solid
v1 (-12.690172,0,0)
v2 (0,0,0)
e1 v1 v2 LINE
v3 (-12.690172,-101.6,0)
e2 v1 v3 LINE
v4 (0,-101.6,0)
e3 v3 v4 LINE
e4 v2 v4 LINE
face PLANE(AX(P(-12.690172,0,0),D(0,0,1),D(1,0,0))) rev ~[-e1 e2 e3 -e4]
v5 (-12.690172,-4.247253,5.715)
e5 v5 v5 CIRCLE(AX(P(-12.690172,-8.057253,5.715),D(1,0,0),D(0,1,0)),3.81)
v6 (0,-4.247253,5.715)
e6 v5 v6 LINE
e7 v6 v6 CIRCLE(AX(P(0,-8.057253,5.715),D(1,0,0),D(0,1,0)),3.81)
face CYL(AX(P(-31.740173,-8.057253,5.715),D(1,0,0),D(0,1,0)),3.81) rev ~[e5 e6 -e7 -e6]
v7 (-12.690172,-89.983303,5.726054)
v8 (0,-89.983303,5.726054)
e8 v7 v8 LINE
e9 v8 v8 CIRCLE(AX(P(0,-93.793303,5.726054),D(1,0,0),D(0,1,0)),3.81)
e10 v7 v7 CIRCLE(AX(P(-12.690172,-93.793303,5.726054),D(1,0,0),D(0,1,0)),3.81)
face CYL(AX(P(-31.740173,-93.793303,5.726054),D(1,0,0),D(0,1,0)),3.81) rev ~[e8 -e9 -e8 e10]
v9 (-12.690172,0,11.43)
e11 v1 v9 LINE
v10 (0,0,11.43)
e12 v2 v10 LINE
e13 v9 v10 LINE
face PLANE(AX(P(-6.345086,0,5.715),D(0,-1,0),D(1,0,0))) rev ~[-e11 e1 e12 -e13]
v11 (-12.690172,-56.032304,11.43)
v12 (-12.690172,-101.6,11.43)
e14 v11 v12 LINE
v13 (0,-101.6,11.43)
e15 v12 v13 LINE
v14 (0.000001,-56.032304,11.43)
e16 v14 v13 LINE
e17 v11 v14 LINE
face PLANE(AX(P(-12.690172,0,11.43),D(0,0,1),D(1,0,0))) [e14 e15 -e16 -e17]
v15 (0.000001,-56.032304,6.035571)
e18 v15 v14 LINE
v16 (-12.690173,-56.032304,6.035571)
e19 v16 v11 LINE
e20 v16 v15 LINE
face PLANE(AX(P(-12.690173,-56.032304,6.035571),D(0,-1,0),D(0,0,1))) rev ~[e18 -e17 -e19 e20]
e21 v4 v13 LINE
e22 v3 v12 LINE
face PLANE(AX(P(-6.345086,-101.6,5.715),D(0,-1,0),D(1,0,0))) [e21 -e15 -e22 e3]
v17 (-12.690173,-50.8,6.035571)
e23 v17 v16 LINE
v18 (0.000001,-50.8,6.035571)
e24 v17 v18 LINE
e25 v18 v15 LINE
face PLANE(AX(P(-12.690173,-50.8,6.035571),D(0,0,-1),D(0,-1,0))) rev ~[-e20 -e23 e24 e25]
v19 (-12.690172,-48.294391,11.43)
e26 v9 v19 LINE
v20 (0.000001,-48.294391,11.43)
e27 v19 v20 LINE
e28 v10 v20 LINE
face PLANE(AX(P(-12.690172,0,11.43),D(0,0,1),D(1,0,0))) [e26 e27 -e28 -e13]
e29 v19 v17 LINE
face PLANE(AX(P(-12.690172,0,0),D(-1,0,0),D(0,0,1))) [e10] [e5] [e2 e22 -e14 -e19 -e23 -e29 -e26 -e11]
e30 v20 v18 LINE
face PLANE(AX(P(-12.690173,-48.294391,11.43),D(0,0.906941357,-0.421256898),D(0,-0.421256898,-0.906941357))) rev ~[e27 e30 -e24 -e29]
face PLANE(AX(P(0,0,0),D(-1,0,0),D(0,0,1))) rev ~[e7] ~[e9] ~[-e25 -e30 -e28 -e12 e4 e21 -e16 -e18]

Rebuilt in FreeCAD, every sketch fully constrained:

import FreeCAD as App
import Part
import Sketcher
from FreeCAD import Vector
Q = App.Units.Quantity


def add_polygon(sketch, points):
    """Adds a closed chain of lines whose ends are joined by coincident constraints."""
    first, n = sketch.GeometryCount, len(points)
    for a, b in zip(points, points[1:] + points[:1]):
        sketch.addGeometry(Part.LineSegment(App.Vector(*a, 0), App.Vector(*b, 0)), False)
    for i in range(n):
        sketch.addConstraint(Sketcher.Constraint("Coincident", first + i, 2, first + (i + 1) % n, 1))

doc = App.newDocument("Part")
body = doc.addObject("PartDesign::Body", "Body")

# Sketch on XZ plane
sketch1 = doc.addObject("Sketcher::SketchObject", "Sketch")
body.addObject(sketch1)
sketch1.AttachmentSupport = (doc.XZ_Plane, [""])
sketch1.MapMode = "FlatFace"
add_polygon(sketch1, [(-13, 11), (-13, 0), (0, 0), (0, 11)])  # lines 0-3
sketch1.addConstraint(Sketcher.Constraint("Vertical", 0))
sketch1.addConstraint(Sketcher.Constraint("Horizontal", 1))
sketch1.addConstraint(Sketcher.Constraint("Vertical", 2))
sketch1.addConstraint(Sketcher.Constraint("Horizontal", 3))
sketch1.addConstraint(Sketcher.Constraint("Coincident", 1, 2, -1, 1))
sketch1.addConstraint(Sketcher.Constraint("DistanceY", 0, 2, 0, 1, Q("0.45 in")))
sketch1.addConstraint(Sketcher.Constraint("DistanceX", 1, 1, 1, 2, 12.690173))
pad1 = doc.addObject("PartDesign::Pad", "Pad")
body.addObject(pad1)
pad1.Profile = sketch1
pad1.Length = Q("4 in")

# Sketch on YZ plane
sketch2 = doc.addObject("Sketcher::SketchObject", "Sketch001")
body.addObject(sketch2)
sketch2.AttachmentSupport = (doc.YZ_Plane, [""])
sketch2.MapMode = "FlatFace"
sketch2.AttachmentOffset = App.Placement(Vector(0, 0, -12.690173), App.Rotation())
add_polygon(sketch2, [(-48, 11), (-51, 6), (-56, 6), (-56, 11)])  # lines 0-3
sketch2.addConstraint(Sketcher.Constraint("Horizontal", 1))
sketch2.addConstraint(Sketcher.Constraint("Vertical", 2))
sketch2.addConstraint(Sketcher.Constraint("Horizontal", 3))
sketch2.addConstraint(Sketcher.Constraint("DistanceX", 0, 2, -1, 1, Q("2 in")))
sketch2.addConstraint(Sketcher.Constraint("DistanceY", -1, 1, 2, 2, Q("0.45 in")))
sketch2.addConstraint(Sketcher.Constraint("DistanceY", 2, 1, 2, 2, 5.394429))
sketch2.addConstraint(Sketcher.Constraint("DistanceX", 1, 2, 1, 1, 5.232304))
sketch2.addConstraint(Sketcher.Constraint("DistanceX", 3, 1, 3, 2, 7.737913))
pocket1 = doc.addObject("PartDesign::Pocket", "Pocket")
body.addObject(pocket1)
pocket1.Profile = sketch2
pocket1.Length = Q("1 in")
pocket1.Reversed = True

# Sketch on YZ plane
sketch3 = doc.addObject("Sketcher::SketchObject", "Sketch002")
body.addObject(sketch3)
sketch3.AttachmentSupport = (doc.YZ_Plane, [""])
sketch3.MapMode = "FlatFace"
sketch3.AttachmentOffset = App.Placement(Vector(0, 0, -12.690173), App.Rotation())
sketch3.addGeometry(Part.Circle(Vector(-8.1, 5.7, 0), Vector(0, 0, 1), 3.8), False)
sketch3.addConstraint(Sketcher.Constraint("Diameter", 0, Q("0.3 in")))
sketch3.addConstraint(Sketcher.Constraint("DistanceY", -1, 1, 0, 3, Q("0.225 in")))
sketch3.addConstraint(Sketcher.Constraint("DistanceX", 0, 3, -1, 1, 8.057253))
doc.recompute()
hole = doc.addObject("PartDesign::Hole", "Hole")
body.addObject(hole)
hole.Profile = sketch3
hole.ThreadType = "None"
hole.Diameter = Q("0.3 in")
hole.DepthType = "Dimension"
hole.Depth = Q("0.75 in")
hole.DrillPoint = "Flat"
hole.Reversed = True

# Sketch on YZ plane
sketch4 = doc.addObject("Sketcher::SketchObject", "Sketch003")
body.addObject(sketch4)
sketch4.AttachmentSupport = (doc.YZ_Plane, [""])
sketch4.MapMode = "FlatFace"
sketch4.AttachmentOffset = App.Placement(Vector(0, 0, -12.690173), App.Rotation())
sketch4.addGeometry(Part.Circle(Vector(-93.8, 5.7, 0), Vector(0, 0, 1), 3.8), False)
sketch4.addConstraint(Sketcher.Constraint("Diameter", 0, Q("0.3 in")))
sketch4.addConstraint(Sketcher.Constraint("DistanceX", 0, 3, -1, 1, 93.793303))
sketch4.addConstraint(Sketcher.Constraint("DistanceY", -1, 1, 0, 3, 5.726054))
doc.recompute()
hole2 = doc.addObject("PartDesign::Hole", "Hole001")
body.addObject(hole2)
hole2.Profile = sketch4
hole2.ThreadType = "None"
hole2.Diameter = Q("0.3 in")
hole2.DepthType = "Dimension"
hole2.Depth = Q("0.75 in")
hole2.DrillPoint = "Flat"
hole2.Reversed = True

doc.recompute()
